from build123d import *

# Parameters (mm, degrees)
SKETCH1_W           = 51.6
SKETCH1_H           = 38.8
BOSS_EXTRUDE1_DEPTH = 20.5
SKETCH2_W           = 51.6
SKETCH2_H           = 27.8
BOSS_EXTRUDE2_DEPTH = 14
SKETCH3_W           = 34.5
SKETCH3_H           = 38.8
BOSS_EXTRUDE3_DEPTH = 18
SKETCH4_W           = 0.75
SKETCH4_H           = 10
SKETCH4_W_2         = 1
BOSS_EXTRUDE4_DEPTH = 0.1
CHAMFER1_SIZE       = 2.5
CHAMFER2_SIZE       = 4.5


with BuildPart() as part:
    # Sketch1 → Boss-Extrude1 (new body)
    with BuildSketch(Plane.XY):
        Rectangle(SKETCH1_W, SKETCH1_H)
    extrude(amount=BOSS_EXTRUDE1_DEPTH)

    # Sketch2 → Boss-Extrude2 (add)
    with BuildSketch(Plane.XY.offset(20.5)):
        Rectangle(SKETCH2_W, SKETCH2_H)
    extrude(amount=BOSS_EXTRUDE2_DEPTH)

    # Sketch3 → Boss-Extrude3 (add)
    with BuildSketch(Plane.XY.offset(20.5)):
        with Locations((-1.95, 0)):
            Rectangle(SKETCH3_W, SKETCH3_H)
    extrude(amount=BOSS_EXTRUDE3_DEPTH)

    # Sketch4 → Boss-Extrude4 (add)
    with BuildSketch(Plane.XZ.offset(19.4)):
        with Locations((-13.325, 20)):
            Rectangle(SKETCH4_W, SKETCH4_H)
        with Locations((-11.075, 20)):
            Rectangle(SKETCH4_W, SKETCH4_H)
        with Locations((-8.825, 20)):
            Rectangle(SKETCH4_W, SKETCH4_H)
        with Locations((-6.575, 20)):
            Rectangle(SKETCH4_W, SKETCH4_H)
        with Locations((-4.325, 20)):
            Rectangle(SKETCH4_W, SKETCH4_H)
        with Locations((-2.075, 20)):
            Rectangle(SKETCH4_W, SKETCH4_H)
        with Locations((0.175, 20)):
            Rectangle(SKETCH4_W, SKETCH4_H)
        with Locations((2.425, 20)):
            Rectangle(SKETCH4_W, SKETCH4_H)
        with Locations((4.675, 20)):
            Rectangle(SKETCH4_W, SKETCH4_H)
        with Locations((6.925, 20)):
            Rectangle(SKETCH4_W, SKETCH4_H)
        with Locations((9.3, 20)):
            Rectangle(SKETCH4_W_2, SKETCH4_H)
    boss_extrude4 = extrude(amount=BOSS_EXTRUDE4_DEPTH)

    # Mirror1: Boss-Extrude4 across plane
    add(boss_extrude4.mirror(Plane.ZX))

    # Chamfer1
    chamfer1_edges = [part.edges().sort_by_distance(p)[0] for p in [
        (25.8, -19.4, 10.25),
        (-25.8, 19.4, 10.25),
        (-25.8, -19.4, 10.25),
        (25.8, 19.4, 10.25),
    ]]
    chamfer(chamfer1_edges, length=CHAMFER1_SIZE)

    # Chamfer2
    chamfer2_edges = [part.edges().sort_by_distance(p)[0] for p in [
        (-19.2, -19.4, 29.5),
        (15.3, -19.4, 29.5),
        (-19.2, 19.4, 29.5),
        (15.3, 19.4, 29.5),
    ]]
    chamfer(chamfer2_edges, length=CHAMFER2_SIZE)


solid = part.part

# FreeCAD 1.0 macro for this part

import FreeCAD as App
import Part
import Sketcher


def edges_at(feature, points):
    """Names of the edges that pass closest to the given points."""
    edges = feature.Shape.Edges
    near = lambda p: min(range(len(edges)), key=lambda i: edges[i].distToShape(Part.Vertex(*p))[0])
    return sorted({f"Edge{near(p) + 1}" for p in points})


def add_polygon(sketch, points):
    """Adds a closed chain of lines whose ends are joined by coincident constraints."""
    first, n = sketch.GeometryCount, len(points)
    for a, b in zip(points, points[1:] + points[:1]):
        sketch.addGeometry(Part.LineSegment(App.Vector(*a, 0), App.Vector(*b, 0)), False)
    for i in range(n):
        sketch.addConstraint(Sketcher.Constraint("Coincident", first + i, 2, first + (i + 1) % n, 1))

doc = App.newDocument("Part")
body = doc.addObject("PartDesign::Body", "Body")

sketch1 = doc.addObject("Sketcher::SketchObject", "Sketch")
body.addObject(sketch1)
sketch1.AttachmentSupport = (doc.XY_Plane, [""])
sketch1.MapMode = "FlatFace"
add_polygon(sketch1, [(-25.8, 19.4), (-25.8, -19.4), (25.8, -19.4), (25.8, 19.4)])
sketch1.addConstraint(Sketcher.Constraint("Vertical", 0))
sketch1.addConstraint(Sketcher.Constraint("Horizontal", 1))
sketch1.addConstraint(Sketcher.Constraint("Vertical", 2))
sketch1.addConstraint(Sketcher.Constraint("Horizontal", 3))
sketch1.addConstraint(Sketcher.Constraint("Symmetric", 0, 2, 2, 2, -1, 1))
sketch1.addConstraint(Sketcher.Constraint("DistanceX", 1, 1, 1, 2, 51.6))
sketch1.addConstraint(Sketcher.Constraint("DistanceY", 0, 2, 0, 1, 38.8))
pad1 = doc.addObject("PartDesign::Pad", "Pad")
body.addObject(pad1)
pad1.Profile = sketch1
pad1.Length = 20.5

sketch2 = doc.addObject("Sketcher::SketchObject", "Sketch001")
body.addObject(sketch2)
sketch2.AttachmentSupport = (doc.XY_Plane, [""])
sketch2.MapMode = "FlatFace"
sketch2.AttachmentOffset = App.Placement(App.Vector(0, 0, 20.5), App.Rotation())
add_polygon(sketch2, [(-25.8, 13.9), (-25.8, -13.9), (25.8, -13.9), (25.8, 13.9)])
sketch2.addConstraint(Sketcher.Constraint("Vertical", 0))
sketch2.addConstraint(Sketcher.Constraint("Horizontal", 1))
sketch2.addConstraint(Sketcher.Constraint("Vertical", 2))
sketch2.addConstraint(Sketcher.Constraint("Horizontal", 3))
sketch2.addConstraint(Sketcher.Constraint("Symmetric", 0, 2, 2, 2, -1, 1))
sketch2.addConstraint(Sketcher.Constraint("DistanceX", 1, 1, 1, 2, 51.6))
sketch2.addConstraint(Sketcher.Constraint("DistanceY", 0, 2, 0, 1, 27.8))
pad2 = doc.addObject("PartDesign::Pad", "Pad001")
body.addObject(pad2)
pad2.Profile = sketch2
pad2.Length = 14

sketch3 = doc.addObject("Sketcher::SketchObject", "Sketch002")
body.addObject(sketch3)
sketch3.AttachmentSupport = (doc.XY_Plane, [""])
sketch3.MapMode = "FlatFace"
sketch3.AttachmentOffset = App.Placement(App.Vector(0, 0, 20.5), App.Rotation())
add_polygon(sketch3, [(-19.2, 19.4), (-19.2, -19.4), (15.3, -19.4), (15.3, 19.4)])
sketch3.addConstraint(Sketcher.Constraint("Vertical", 0))
sketch3.addConstraint(Sketcher.Constraint("Horizontal", 1))
sketch3.addConstraint(Sketcher.Constraint("Vertical", 2))
sketch3.addConstraint(Sketcher.Constraint("Horizontal", 3))
sketch3.addConstraint(Sketcher.Constraint("DistanceX", 1, 1, 1, 2, 34.5))
sketch3.addConstraint(Sketcher.Constraint("DistanceY", 0, 2, 0, 1, 38.8))
sketch3.addConstraint(Sketcher.Constraint("DistanceX", 0, 2, -1, 1, 19.2))
sketch3.addConstraint(Sketcher.Constraint("DistanceY", 0, 2, -1, 1, 19.4))
pad3 = doc.addObject("PartDesign::Pad", "Pad002")
body.addObject(pad3)
pad3.Profile = sketch3
pad3.Length = 18

sketch4 = doc.addObject("Sketcher::SketchObject", "Sketch003")
body.addObject(sketch4)
sketch4.AttachmentSupport = (doc.XZ_Plane, [""])
sketch4.MapMode = "FlatFace"
sketch4.AttachmentOffset = App.Placement(App.Vector(0, 0, 19.4), App.Rotation())
add_polygon(sketch4, [(-13.7, 25), (-13.7, 15), (-12.95, 15), (-12.95, 25)])
add_polygon(sketch4, [(-11.45, 25), (-11.45, 15), (-10.7, 15), (-10.7, 25)])
add_polygon(sketch4, [(-9.2, 25), (-9.2, 15), (-8.45, 15), (-8.45, 25)])
add_polygon(sketch4, [(-6.95, 25), (-6.95, 15), (-6.2, 15), (-6.2, 25)])
add_polygon(sketch4, [(-4.7, 25), (-4.7, 15), (-3.95, 15), (-3.95, 25)])
add_polygon(sketch4, [(-2.45, 25), (-2.45, 15), (-1.7, 15), (-1.7, 25)])
add_polygon(sketch4, [(-0.2, 25), (-0.2, 15), (0.55, 15), (0.55, 25)])
add_polygon(sketch4, [(2.05, 25), (2.05, 15), (2.8, 15), (2.8, 25)])
add_polygon(sketch4, [(4.3, 25), (4.3, 15), (5.05, 15), (5.05, 25)])
add_polygon(sketch4, [(6.55, 25), (6.55, 15), (7.3, 15), (7.3, 25)])
add_polygon(sketch4, [(8.8, 25), (8.8, 15), (9.8, 15), (9.8, 25)])
sketch4.addConstraint(Sketcher.Constraint("Vertical", 0))
sketch4.addConstraint(Sketcher.Constraint("Horizontal", 1))
sketch4.addConstraint(Sketcher.Constraint("Vertical", 2))
sketch4.addConstraint(Sketcher.Constraint("Horizontal", 3))
sketch4.addConstraint(Sketcher.Constraint("Vertical", 4))
sketch4.addConstraint(Sketcher.Constraint("Horizontal", 5))
sketch4.addConstraint(Sketcher.Constraint("Vertical", 6))
sketch4.addConstraint(Sketcher.Constraint("Horizontal", 7))
sketch4.addConstraint(Sketcher.Constraint("Vertical", 8))
sketch4.addConstraint(Sketcher.Constraint("Horizontal", 9))
sketch4.addConstraint(Sketcher.Constraint("Vertical", 10))
sketch4.addConstraint(Sketcher.Constraint("Horizontal", 11))
sketch4.addConstraint(Sketcher.Constraint("Vertical", 12))
sketch4.addConstraint(Sketcher.Constraint("Horizontal", 13))
sketch4.addConstraint(Sketcher.Constraint("Vertical", 14))
sketch4.addConstraint(Sketcher.Constraint("Horizontal", 15))
sketch4.addConstraint(Sketcher.Constraint("Vertical", 16))
sketch4.addConstraint(Sketcher.Constraint("Horizontal", 17))
sketch4.addConstraint(Sketcher.Constraint("Vertical", 18))
sketch4.addConstraint(Sketcher.Constraint("Horizontal", 19))
sketch4.addConstraint(Sketcher.Constraint("Vertical", 20))
sketch4.addConstraint(Sketcher.Constraint("Horizontal", 21))
sketch4.addConstraint(Sketcher.Constraint("Vertical", 22))
sketch4.addConstraint(Sketcher.Constraint("Horizontal", 23))
sketch4.addConstraint(Sketcher.Constraint("Vertical", 24))
sketch4.addConstraint(Sketcher.Constraint("Horizontal", 25))
sketch4.addConstraint(Sketcher.Constraint("Vertical", 26))
sketch4.addConstraint(Sketcher.Constraint("Horizontal", 27))
sketch4.addConstraint(Sketcher.Constraint("Vertical", 28))
sketch4.addConstraint(Sketcher.Constraint("Horizontal", 29))
sketch4.addConstraint(Sketcher.Constraint("Vertical", 30))
sketch4.addConstraint(Sketcher.Constraint("Horizontal", 31))
sketch4.addConstraint(Sketcher.Constraint("Vertical", 32))
sketch4.addConstraint(Sketcher.Constraint("Horizontal", 33))
sketch4.addConstraint(Sketcher.Constraint("Vertical", 34))
sketch4.addConstraint(Sketcher.Constraint("Horizontal", 35))
sketch4.addConstraint(Sketcher.Constraint("Vertical", 36))
sketch4.addConstraint(Sketcher.Constraint("Horizontal", 37))
sketch4.addConstraint(Sketcher.Constraint("Vertical", 38))
sketch4.addConstraint(Sketcher.Constraint("Horizontal", 39))
sketch4.addConstraint(Sketcher.Constraint("Vertical", 40))
sketch4.addConstraint(Sketcher.Constraint("Horizontal", 41))
sketch4.addConstraint(Sketcher.Constraint("Vertical", 42))
sketch4.addConstraint(Sketcher.Constraint("Horizontal", 43))
sketch4.addConstraint(Sketcher.Constraint("Horizontal", 1, 2, 4, 2))
sketch4.addConstraint(Sketcher.Constraint("Horizontal", 3, 2, 6, 2))
sketch4.addConstraint(Sketcher.Constraint("Horizontal", 5, 2, 8, 2))
sketch4.addConstraint(Sketcher.Constraint("Horizontal", 7, 2, 10, 2))
sketch4.addConstraint(Sketcher.Constraint("Horizontal", 9, 2, 12, 2))
sketch4.addConstraint(Sketcher.Constraint("Horizontal", 11, 2, 14, 2))
sketch4.addConstraint(Sketcher.Constraint("Horizontal", 13, 2, 16, 2))
sketch4.addConstraint(Sketcher.Constraint("Horizontal", 15, 2, 18, 2))
sketch4.addConstraint(Sketcher.Constraint("Horizontal", 17, 2, 20, 2))
sketch4.addConstraint(Sketcher.Constraint("Horizontal", 19, 2, 22, 2))
sketch4.addConstraint(Sketcher.Constraint("Horizontal", 21, 2, 24, 2))
sketch4.addConstraint(Sketcher.Constraint("Horizontal", 23, 2, 26, 2))
sketch4.addConstraint(Sketcher.Constraint("Horizontal", 25, 2, 28, 2))
sketch4.addConstraint(Sketcher.Constraint("Horizontal", 27, 2, 30, 2))
sketch4.addConstraint(Sketcher.Constraint("Horizontal", 29, 2, 32, 2))
sketch4.addConstraint(Sketcher.Constraint("Horizontal", 31, 2, 34, 2))
sketch4.addConstraint(Sketcher.Constraint("Horizontal", 33, 2, 36, 2))
sketch4.addConstraint(Sketcher.Constraint("Horizontal", 35, 2, 38, 2))
sketch4.addConstraint(Sketcher.Constraint("Horizontal", 37, 2, 40, 2))
sketch4.addConstraint(Sketcher.Constraint("Horizontal", 39, 2, 42, 2))
sketch4.addConstraint(Sketcher.Constraint("Equal", 3, 5))
sketch4.addConstraint(Sketcher.Constraint("Equal", 7, 9))
sketch4.addConstraint(Sketcher.Constraint("Equal", 11, 13))
sketch4.addConstraint(Sketcher.Constraint("Equal", 15, 17))
sketch4.addConstraint(Sketcher.Constraint("Equal", 19, 21))
sketch4.addConstraint(Sketcher.Constraint("Equal", 23, 25))
sketch4.addConstraint(Sketcher.Constraint("Equal", 27, 29))
sketch4.addConstraint(Sketcher.Constraint("Equal", 31, 33))
sketch4.addConstraint(Sketcher.Constraint("Equal", 35, 37))
sketch4.addConstraint(Sketcher.Constraint("DistanceX", 41, 1, 41, 2, 1.0))
sketch4.addConstraint(Sketcher.Constraint("DistanceY", 0, 2, 0, 1, 10.0))
sketch4.addConstraint(Sketcher.Constraint("DistanceY", -1, 1, 0, 2, 15.0))
sketch4.addConstraint(Sketcher.Constraint("DistanceX", 0, 2, 5, 2, 3.0))
sketch4.addConstraint(Sketcher.Constraint("DistanceX", 4, 2, 9, 2, 3.0))
sketch4.addConstraint(Sketcher.Constraint("DistanceX", 1, 2, 12, 2, 6.0))
sketch4.addConstraint(Sketcher.Constraint("DistanceX", 8, 2, 13, 2, 3.0))
sketch4.addConstraint(Sketcher.Constraint("DistanceX", 5, 2, 16, 2, 6.0))
sketch4.addConstraint(Sketcher.Constraint("DistanceX", 9, 2, 20, 2, 6.0))
sketch4.addConstraint(Sketcher.Constraint("DistanceX", 13, 2, 24, 2, 6.0))
sketch4.addConstraint(Sketcher.Constraint("DistanceX", 17, 2, 28, 2, 6.0))
sketch4.addConstraint(Sketcher.Constraint("DistanceX", 21, 2, 32, 2, 6.0))
sketch4.addConstraint(Sketcher.Constraint("DistanceX", 25, 2, 36, 2, 6.0))
sketch4.addConstraint(Sketcher.Constraint("DistanceX", 29, 2, 40, 2, 6.0))
sketch4.addConstraint(Sketcher.Constraint("DistanceX", 0, 2, -1, 1, 13.7))
pad4 = doc.addObject("PartDesign::Pad", "Pad003")
body.addObject(pad4)
pad4.Profile = sketch4
pad4.Length = 0.1
doc.recompute()

mirrored = doc.addObject("PartDesign::Mirrored", "Mirrored")
body.addObject(mirrored)
mirrored.Originals = [pad4]
mirrored.MirrorPlane = (doc.XZ_Plane, [""])
body.Tip = mirrored
doc.recompute()

chamfer = doc.addObject("PartDesign::Chamfer", "Chamfer")
body.addObject(chamfer)
chamfer.Base = (mirrored, edges_at(mirrored, [
    (25.8, -19.4, 10.25),
    (-25.8, 19.4, 10.25),
    (-25.8, -19.4, 10.25),
    (25.8, 19.4, 10.25),
]))
chamfer.Size = 2.5
doc.recompute()

chamfer2 = doc.addObject("PartDesign::Chamfer", "Chamfer001")
body.addObject(chamfer2)
chamfer2.Base = (chamfer, edges_at(chamfer, [
    (-19.2, -19.4, 29.5),
    (15.3, -19.4, 29.5),
    (-19.2, 19.4, 29.5),
    (15.3, 19.4, 29.5),
]))
chamfer2.Size = 4.5

doc.recompute()
